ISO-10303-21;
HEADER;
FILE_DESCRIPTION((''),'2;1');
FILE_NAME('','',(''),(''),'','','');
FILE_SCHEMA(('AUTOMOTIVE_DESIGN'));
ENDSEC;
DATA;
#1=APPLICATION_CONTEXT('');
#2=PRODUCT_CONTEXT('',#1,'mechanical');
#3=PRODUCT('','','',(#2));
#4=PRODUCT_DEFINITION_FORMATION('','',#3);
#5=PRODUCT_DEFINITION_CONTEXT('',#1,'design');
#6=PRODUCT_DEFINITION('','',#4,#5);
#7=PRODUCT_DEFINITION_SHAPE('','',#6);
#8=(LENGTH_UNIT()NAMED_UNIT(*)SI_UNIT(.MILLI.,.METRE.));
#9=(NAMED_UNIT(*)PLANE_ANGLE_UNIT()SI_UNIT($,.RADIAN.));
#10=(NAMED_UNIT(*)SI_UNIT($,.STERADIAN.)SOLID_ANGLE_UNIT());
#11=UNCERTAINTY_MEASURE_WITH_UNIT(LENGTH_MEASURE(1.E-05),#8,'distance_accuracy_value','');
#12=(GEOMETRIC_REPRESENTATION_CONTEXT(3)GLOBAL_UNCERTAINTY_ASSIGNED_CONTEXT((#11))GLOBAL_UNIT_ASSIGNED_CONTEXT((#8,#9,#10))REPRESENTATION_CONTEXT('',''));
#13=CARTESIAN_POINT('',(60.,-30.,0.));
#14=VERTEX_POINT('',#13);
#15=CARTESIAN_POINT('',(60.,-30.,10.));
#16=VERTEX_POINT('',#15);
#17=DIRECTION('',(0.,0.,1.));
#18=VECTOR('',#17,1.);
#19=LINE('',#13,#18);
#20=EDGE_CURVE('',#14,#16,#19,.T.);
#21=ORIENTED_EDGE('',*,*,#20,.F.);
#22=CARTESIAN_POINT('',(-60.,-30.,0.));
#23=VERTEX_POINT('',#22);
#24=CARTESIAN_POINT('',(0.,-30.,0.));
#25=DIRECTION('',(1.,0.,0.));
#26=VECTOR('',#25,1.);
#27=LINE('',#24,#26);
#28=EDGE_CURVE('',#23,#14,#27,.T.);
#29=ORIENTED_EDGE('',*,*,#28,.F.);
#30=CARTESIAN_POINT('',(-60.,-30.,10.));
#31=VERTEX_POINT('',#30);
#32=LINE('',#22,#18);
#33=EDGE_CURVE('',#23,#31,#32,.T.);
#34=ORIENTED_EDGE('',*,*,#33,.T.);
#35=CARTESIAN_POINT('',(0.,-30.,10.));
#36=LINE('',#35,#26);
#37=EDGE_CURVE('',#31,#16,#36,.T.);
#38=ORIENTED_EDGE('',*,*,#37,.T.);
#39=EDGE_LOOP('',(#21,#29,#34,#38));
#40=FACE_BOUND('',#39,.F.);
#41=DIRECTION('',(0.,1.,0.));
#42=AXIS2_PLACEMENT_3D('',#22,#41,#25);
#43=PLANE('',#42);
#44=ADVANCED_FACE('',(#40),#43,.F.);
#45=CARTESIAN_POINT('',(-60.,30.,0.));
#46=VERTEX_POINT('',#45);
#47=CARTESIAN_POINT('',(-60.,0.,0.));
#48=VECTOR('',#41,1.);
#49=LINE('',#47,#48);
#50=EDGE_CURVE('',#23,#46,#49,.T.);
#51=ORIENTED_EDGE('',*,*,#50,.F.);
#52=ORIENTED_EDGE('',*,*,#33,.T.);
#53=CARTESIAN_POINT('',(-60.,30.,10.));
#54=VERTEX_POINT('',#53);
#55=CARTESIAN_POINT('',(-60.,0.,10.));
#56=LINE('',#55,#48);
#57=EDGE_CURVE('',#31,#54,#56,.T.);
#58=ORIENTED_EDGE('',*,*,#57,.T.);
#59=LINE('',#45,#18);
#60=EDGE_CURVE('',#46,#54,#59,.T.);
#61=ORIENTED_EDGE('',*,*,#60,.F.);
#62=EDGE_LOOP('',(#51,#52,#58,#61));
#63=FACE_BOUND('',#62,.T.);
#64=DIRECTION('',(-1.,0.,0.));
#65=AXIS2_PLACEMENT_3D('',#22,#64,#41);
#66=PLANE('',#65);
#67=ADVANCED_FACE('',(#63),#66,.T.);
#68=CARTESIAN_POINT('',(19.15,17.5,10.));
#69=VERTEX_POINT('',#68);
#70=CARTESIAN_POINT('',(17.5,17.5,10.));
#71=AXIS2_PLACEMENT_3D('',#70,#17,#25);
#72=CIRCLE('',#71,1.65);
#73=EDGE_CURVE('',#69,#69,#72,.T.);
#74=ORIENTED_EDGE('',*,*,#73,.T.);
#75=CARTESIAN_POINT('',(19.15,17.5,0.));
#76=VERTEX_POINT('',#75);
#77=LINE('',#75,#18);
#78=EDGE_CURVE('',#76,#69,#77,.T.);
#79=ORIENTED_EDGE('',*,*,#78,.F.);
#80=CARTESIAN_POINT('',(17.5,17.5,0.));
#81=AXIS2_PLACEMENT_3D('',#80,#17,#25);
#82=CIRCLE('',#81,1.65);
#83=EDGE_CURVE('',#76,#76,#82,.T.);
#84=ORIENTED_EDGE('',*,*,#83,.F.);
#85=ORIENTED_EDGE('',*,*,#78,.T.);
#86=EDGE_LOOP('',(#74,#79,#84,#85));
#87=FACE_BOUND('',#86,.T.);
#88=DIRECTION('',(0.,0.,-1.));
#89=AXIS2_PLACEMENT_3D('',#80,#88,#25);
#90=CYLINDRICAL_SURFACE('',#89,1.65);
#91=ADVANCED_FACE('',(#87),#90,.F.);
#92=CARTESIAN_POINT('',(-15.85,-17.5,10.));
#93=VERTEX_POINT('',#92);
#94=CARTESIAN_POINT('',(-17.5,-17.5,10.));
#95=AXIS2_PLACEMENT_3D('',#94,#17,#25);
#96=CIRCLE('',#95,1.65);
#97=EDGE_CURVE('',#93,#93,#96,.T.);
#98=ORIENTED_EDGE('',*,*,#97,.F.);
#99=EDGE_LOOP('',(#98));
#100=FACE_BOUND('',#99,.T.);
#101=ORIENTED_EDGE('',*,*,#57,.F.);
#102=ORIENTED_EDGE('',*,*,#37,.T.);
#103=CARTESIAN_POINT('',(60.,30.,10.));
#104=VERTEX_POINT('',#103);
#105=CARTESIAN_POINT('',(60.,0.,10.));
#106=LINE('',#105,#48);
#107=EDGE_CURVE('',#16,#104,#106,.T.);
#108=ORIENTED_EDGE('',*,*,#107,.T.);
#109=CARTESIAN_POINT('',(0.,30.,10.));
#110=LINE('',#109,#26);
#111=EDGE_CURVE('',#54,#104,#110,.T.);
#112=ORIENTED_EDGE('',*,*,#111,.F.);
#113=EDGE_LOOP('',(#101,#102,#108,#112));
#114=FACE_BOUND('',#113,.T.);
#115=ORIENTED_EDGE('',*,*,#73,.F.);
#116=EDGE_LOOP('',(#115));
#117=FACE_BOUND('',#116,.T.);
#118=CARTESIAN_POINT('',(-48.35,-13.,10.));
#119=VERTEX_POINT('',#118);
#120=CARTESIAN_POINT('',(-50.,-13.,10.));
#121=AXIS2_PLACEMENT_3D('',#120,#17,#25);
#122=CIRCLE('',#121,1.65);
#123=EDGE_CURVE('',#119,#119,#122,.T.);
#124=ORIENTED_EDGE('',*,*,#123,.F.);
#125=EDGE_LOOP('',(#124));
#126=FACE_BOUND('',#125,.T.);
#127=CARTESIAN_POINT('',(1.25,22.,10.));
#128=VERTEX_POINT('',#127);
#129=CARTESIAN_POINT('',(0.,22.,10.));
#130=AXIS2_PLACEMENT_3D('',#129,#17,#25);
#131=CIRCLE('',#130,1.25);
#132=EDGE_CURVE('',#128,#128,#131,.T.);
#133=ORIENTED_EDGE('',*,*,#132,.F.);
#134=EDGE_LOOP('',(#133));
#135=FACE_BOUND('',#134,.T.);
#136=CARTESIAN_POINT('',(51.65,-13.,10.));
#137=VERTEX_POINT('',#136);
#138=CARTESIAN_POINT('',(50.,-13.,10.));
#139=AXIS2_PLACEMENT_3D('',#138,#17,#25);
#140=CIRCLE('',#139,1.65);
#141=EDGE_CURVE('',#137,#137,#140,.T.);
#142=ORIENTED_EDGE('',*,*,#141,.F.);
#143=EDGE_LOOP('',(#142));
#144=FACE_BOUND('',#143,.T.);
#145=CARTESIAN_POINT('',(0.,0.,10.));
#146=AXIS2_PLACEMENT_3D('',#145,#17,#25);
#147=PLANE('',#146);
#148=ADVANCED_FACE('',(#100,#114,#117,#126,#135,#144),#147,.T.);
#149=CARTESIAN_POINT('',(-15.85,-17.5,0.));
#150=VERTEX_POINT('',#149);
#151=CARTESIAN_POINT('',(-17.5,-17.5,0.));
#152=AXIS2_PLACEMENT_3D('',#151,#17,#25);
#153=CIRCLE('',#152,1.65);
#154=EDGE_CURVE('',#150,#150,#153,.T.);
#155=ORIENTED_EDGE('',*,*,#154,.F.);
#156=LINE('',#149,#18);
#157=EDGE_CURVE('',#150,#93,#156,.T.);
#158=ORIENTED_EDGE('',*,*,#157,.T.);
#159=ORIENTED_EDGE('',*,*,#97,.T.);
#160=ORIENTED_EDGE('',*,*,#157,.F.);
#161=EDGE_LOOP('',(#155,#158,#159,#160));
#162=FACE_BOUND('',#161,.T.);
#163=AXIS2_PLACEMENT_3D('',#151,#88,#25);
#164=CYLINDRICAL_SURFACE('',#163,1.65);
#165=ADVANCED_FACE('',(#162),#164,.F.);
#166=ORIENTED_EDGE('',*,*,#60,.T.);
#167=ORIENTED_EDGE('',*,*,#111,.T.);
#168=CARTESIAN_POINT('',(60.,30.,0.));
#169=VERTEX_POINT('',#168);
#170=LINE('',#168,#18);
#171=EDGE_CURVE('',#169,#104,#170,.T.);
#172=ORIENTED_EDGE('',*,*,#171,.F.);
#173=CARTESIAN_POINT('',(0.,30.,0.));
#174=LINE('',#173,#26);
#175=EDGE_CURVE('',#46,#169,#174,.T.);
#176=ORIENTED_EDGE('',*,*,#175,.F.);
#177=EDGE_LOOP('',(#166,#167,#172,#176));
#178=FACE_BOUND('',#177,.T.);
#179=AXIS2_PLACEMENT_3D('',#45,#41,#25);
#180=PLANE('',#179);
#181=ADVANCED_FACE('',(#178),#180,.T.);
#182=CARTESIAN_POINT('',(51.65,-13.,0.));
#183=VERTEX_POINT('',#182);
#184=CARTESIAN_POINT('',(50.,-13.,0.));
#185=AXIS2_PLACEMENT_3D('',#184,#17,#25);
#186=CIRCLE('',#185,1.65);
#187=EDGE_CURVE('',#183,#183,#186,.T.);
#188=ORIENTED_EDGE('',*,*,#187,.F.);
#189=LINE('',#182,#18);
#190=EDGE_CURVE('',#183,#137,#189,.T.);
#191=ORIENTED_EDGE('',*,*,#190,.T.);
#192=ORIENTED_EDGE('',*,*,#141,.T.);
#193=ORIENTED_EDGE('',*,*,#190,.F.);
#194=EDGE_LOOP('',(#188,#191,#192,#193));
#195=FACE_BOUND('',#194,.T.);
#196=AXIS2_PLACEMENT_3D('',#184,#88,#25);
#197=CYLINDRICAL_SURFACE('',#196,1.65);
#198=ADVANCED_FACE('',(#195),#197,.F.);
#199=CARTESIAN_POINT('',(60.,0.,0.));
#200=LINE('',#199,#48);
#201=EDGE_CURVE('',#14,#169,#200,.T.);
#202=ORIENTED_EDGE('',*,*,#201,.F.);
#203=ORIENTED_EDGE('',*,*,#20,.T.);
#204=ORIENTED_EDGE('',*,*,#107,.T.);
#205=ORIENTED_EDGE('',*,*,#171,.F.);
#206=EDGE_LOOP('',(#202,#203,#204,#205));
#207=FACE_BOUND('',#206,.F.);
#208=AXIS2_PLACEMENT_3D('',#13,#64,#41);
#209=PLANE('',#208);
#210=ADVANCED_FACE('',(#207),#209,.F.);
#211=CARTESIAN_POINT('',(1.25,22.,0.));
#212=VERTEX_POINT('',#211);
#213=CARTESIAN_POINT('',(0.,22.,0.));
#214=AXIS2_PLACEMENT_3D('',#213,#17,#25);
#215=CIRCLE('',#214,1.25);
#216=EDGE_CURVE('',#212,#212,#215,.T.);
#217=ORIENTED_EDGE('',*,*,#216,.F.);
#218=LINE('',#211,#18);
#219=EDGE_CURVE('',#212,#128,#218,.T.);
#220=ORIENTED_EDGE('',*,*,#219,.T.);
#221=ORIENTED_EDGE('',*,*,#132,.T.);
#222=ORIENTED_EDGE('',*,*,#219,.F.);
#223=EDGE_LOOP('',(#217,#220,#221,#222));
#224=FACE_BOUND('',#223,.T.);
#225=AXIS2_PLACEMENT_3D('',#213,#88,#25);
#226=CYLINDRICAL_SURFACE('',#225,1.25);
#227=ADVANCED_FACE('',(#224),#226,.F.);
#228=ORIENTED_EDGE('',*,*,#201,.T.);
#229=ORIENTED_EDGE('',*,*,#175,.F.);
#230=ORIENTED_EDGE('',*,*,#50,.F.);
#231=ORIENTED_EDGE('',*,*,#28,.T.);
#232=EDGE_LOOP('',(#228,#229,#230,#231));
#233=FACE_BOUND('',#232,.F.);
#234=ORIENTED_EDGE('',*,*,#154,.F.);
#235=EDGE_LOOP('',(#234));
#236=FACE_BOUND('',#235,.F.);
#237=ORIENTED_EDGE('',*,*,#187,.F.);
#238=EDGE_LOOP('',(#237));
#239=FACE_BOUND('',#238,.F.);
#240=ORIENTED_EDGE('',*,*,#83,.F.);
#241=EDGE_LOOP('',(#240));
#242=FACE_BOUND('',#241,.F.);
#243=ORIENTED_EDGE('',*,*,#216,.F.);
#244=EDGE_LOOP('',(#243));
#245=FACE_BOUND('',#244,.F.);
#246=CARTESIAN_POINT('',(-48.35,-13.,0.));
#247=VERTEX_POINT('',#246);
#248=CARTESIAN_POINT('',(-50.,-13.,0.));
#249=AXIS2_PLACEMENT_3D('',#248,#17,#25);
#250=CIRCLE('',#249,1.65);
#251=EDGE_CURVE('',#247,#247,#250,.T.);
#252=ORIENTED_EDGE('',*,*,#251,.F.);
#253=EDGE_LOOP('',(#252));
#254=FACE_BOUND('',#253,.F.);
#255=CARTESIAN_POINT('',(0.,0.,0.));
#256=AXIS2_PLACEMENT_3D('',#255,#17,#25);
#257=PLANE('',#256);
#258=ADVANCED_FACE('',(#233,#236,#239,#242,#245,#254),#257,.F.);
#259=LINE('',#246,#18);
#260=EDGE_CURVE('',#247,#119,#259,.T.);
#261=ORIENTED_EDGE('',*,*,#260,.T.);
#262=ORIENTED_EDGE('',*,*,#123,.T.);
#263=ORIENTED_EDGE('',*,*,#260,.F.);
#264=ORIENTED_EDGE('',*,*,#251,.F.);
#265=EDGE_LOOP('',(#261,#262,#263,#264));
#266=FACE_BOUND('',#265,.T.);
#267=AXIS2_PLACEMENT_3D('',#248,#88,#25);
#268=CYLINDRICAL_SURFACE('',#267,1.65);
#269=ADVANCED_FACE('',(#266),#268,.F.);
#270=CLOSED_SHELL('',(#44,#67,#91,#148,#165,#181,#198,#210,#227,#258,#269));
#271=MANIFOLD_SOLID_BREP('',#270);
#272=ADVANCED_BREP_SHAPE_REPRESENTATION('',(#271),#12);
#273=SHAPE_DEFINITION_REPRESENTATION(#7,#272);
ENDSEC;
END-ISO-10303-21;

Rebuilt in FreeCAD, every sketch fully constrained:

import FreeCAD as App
import Part
import Sketcher
from FreeCAD import Vector
Q = App.Units.Quantity


def add_polygon(sketch, points):
    """Adds a closed chain of lines whose ends are joined by coincident constraints."""
    first, n = sketch.GeometryCount, len(points)
    for a, b in zip(points, points[1:] + points[:1]):
        sketch.addGeometry(Part.LineSegment(App.Vector(*a, 0), App.Vector(*b, 0)), False)
    for i in range(n):
        sketch.addConstraint(Sketcher.Constraint("Coincident", first + i, 2, first + (i + 1) % n, 1))

doc = App.newDocument("Part")
body = doc.addObject("PartDesign::Body", "Body")

sketch1 = doc.addObject("Sketcher::SketchObject", "Sketch")
body.addObject(sketch1)
sketch1.AttachmentSupport = (doc.XY_Plane, [""])
sketch1.MapMode = "FlatFace"
add_polygon(sketch1, [(-60, 30), (-60, -30), (60, -30), (60, 30)])
sketch1.addGeometry(Part.Circle(Vector(-50, -13, 0), Vector(0, 0, 1), 1.6), False)
sketch1.addGeometry(Part.Circle(Vector(-17.5, -17.5, 0), Vector(0, 0, 1), 1.6), False)
sketch1.addGeometry(Part.Circle(Vector(50, -13, 0), Vector(0, 0, 1), 1.6), False)
sketch1.addGeometry(Part.Circle(Vector(0, 22, 0), Vector(0, 0, 1), 1.2), False)
sketch1.addGeometry(Part.Circle(Vector(17.5, 17.5, 0), Vector(0, 0, 1), 1.6), False)
sketch1.addConstraint(Sketcher.Constraint("Vertical", 0))
sketch1.addConstraint(Sketcher.Constraint("Horizontal", 1))
sketch1.addConstraint(Sketcher.Constraint("Vertical", 2))
sketch1.addConstraint(Sketcher.Constraint("Horizontal", 3))
sketch1.addConstraint(Sketcher.Constraint("Equal", 4, 5))
sketch1.addConstraint(Sketcher.Constraint("Equal", 5, 6))
sketch1.addConstraint(Sketcher.Constraint("Equal", 6, 8))
sketch1.addConstraint(Sketcher.Constraint("Symmetric", 5, 3, 8, 3, -1, 1))
sketch1.addConstraint(Sketcher.Constraint("Symmetric", 0, 2, 2, 2, -1, 1))
sketch1.addConstraint(Sketcher.Constraint("Symmetric", 4, 3, 6, 3, -2))
sketch1.addConstraint(Sketcher.Constraint("PointOnObject", 7, 3, -2))
sketch1.addConstraint(Sketcher.Constraint("Diameter", 4, Q("3.3 mm")))
sketch1.addConstraint(Sketcher.Constraint("Diameter", 7, Q("2.5 mm")))
sketch1.addConstraint(Sketcher.Constraint("DistanceX", 1, 1, 1, 2, Q("120 mm")))
sketch1.addConstraint(Sketcher.Constraint("DistanceY", 0, 2, 0, 1, Q("60 mm")))
sketch1.addConstraint(Sketcher.Constraint("DistanceX", 4, 3, -1, 1, Q("50 mm")))
sketch1.addConstraint(Sketcher.Constraint("DistanceY", 4, 3, -1, 1, Q("13 mm")))
sketch1.addConstraint(Sketcher.Constraint("DistanceY", -1, 1, 7, 3, Q("22 mm")))
sketch1.addConstraint(Sketcher.Constraint("DistanceX", 5, 3, 8, 3, Q("35 mm")))
sketch1.addConstraint(Sketcher.Constraint("DistanceY", 5, 3, 8, 3, Q("35 mm")))
pad1 = doc.addObject("PartDesign::Pad", "Pad")
body.addObject(pad1)
pad1.Profile = sketch1
pad1.Length = 10

doc.recompute()
